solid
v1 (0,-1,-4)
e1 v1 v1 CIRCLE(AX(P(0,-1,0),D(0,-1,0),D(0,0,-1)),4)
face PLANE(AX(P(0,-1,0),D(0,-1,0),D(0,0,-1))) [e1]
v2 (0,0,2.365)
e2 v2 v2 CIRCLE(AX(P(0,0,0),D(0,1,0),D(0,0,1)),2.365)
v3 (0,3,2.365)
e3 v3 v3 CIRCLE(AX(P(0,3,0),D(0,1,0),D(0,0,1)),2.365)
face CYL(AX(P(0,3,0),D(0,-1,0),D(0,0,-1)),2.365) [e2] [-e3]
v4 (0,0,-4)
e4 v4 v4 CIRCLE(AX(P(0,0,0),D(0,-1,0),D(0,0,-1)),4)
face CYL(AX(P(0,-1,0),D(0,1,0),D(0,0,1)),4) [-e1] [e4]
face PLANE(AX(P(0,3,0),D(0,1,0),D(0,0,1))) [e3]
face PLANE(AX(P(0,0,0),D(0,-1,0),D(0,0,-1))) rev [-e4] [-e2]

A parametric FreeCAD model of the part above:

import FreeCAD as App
import Part
import Sketcher
from FreeCAD import Vector

doc = App.newDocument("Part")
params = doc.addObject("Spreadsheet::Sheet", "Params")
for row, (alias, value) in enumerate([
    ("sketch1_diameter", "4.73 mm"),
    ("pad1_length", "3 mm"),
    ("sketch2_diameter", "8 mm"),
    ("pad2_length", "1 mm"),
], start=1):
    params.set(f"A{row}", alias)
    params.set(f"B{row}", "=" + value)
    params.setAlias(f"B{row}", alias)

body = doc.addObject("PartDesign::Body", "Body")

# Sketch on XZ plane
sketch1 = doc.addObject("Sketcher::SketchObject", "Sketch")
body.addObject(sketch1)
sketch1.AttachmentSupport = (doc.XZ_Plane, [""])
sketch1.MapMode = "FlatFace"
sketch1.addGeometry(Part.Circle(Vector(0, 0, 0), Vector(0, 0, 1), 2.4), False)
sketch1.addConstraint([
    Sketcher.Constraint("Coincident", 0, 3, -1, 1),
    Sketcher.Constraint("Diameter", 0, 4.73),
])
sketch1.setExpression("Constraints[1]", "Params.sketch1_diameter")
pad1 = doc.addObject("PartDesign::Pad", "Pad")
body.addObject(pad1)
pad1.Profile = sketch1
pad1.setExpression("Length", "Params.pad1_length")
pad1.Reversed = True

# Sketch on XZ plane
sketch2 = doc.addObject("Sketcher::SketchObject", "Sketch001")
body.addObject(sketch2)
sketch2.AttachmentSupport = (doc.XZ_Plane, [""])
sketch2.MapMode = "FlatFace"
sketch2.addGeometry(Part.Circle(Vector(0, 0, 0), Vector(0, 0, 1), 4), False)
sketch2.addConstraint([
    Sketcher.Constraint("Coincident", 0, 3, -1, 1),
    Sketcher.Constraint("Diameter", 0, 8.0),
])
sketch2.setExpression("Constraints[1]", "Params.sketch2_diameter")
pad2 = doc.addObject("PartDesign::Pad", "Pad001")
body.addObject(pad2)
pad2.Profile = sketch2
pad2.setExpression("Length", "Params.pad2_length")

doc.recompute()
